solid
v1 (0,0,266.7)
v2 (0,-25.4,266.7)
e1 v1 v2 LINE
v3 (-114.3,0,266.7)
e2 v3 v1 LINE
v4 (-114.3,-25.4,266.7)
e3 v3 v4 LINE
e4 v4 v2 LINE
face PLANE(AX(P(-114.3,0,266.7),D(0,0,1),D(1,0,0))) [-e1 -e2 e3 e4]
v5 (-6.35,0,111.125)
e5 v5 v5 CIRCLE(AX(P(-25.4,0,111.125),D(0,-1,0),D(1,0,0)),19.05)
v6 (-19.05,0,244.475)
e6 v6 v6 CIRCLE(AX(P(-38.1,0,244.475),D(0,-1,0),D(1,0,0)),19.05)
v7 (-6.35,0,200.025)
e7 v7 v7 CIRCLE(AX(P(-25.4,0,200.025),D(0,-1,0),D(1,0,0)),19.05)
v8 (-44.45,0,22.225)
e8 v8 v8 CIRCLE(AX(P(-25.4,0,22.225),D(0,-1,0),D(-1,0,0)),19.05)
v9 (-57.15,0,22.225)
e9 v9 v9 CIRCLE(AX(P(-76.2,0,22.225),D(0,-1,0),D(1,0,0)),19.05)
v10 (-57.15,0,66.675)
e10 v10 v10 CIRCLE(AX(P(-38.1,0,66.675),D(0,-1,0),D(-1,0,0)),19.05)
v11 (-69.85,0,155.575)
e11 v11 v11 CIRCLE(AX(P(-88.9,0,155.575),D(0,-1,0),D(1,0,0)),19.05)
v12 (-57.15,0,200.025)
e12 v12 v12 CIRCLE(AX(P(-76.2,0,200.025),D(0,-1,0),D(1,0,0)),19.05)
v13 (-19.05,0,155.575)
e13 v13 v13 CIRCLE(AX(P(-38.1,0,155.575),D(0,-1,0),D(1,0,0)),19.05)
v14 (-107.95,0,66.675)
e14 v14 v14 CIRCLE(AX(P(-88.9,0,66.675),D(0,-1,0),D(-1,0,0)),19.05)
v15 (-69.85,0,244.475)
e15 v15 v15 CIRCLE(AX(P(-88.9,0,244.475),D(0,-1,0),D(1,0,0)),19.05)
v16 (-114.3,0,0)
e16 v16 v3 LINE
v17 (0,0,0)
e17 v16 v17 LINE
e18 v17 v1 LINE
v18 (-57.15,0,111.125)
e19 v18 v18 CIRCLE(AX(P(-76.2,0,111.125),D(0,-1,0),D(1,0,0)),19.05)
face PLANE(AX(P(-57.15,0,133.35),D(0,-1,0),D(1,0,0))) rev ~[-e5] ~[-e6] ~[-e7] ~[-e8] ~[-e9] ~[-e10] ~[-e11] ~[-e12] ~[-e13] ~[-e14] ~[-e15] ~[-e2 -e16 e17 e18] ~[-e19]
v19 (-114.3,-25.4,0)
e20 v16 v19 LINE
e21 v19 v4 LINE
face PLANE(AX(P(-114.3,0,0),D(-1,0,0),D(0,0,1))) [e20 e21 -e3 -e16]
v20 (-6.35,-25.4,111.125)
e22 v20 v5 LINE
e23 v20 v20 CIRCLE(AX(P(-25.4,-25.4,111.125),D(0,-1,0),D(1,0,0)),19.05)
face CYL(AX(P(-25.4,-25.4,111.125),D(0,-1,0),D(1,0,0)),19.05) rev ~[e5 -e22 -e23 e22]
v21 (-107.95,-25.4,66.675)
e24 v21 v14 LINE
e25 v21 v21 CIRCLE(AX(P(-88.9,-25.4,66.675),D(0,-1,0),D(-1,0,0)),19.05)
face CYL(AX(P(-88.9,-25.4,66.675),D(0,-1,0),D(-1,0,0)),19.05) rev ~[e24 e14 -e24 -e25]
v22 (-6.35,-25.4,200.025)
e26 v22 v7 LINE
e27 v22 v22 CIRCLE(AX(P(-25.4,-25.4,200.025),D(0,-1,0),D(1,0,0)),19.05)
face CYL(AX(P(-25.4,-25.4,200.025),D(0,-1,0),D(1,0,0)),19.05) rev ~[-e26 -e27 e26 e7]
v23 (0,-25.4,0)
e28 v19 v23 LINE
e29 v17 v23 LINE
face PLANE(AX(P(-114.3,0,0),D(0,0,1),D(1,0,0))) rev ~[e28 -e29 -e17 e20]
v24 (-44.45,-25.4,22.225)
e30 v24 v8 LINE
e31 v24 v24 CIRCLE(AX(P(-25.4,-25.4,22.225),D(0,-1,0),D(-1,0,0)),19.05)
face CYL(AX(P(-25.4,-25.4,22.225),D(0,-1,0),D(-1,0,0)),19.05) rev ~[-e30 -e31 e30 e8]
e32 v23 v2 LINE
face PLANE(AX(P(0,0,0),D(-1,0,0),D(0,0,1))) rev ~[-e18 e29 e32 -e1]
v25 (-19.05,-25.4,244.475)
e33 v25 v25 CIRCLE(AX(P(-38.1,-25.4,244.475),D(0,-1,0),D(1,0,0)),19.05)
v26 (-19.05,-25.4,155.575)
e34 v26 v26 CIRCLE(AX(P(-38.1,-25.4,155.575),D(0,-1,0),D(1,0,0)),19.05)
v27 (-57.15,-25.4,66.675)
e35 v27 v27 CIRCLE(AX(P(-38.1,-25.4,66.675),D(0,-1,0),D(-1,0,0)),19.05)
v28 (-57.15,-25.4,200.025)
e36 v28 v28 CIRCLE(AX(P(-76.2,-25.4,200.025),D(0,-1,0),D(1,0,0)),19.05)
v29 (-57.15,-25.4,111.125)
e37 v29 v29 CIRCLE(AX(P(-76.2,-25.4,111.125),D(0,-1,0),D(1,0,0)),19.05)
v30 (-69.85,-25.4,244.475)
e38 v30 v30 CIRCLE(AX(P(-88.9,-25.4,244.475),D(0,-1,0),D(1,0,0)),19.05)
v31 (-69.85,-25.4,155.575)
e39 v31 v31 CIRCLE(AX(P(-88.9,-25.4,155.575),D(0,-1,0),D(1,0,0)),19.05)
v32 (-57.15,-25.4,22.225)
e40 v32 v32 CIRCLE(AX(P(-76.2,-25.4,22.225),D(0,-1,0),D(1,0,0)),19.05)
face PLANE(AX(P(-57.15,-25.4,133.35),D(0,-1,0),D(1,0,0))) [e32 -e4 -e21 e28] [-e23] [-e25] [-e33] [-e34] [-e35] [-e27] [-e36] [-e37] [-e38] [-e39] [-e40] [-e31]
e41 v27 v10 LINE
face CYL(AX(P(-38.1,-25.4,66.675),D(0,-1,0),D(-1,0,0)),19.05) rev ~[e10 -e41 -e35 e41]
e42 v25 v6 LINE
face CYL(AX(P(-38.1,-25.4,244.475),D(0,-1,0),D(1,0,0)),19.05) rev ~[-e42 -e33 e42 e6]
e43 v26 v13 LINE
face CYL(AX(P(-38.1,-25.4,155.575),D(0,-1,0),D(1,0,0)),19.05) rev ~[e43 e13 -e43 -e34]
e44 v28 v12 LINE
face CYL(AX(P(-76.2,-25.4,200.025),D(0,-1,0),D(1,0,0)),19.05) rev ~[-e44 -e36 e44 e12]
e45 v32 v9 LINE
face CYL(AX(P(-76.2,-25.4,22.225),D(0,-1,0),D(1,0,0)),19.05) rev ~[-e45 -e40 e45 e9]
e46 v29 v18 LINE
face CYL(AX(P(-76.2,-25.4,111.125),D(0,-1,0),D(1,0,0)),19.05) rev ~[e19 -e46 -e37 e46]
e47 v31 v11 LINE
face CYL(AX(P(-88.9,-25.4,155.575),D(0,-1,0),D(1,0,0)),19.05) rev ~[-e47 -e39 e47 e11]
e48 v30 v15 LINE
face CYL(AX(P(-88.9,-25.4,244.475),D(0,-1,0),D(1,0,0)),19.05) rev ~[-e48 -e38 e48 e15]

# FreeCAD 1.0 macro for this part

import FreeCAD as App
import Part
import Sketcher
from FreeCAD import Vector
Q = App.Units.Quantity

doc = App.newDocument("Part")
body = doc.addObject("PartDesign::Body", "Body")

sketch1 = doc.addObject("Sketcher::SketchObject", "Sketch")
body.addObject(sketch1)
sketch1.AttachmentSupport = (doc.XZ_Plane, [""])
sketch1.MapMode = "FlatFace"
sketch1.addGeometry([
    Part.LineSegment(Vector(-114.3, 266.7, 0), Vector(-114.3, 0, 0)),
    Part.LineSegment(Vector(-114.3, 0, 0), Vector(0, 0, 0)),
    Part.LineSegment(Vector(0, 0, 0), Vector(0, 266.7, 0)),
    Part.LineSegment(Vector(0, 266.7, 0), Vector(-114.3, 266.7, 0)),
], False)
sketch1.addConstraint([
    Sketcher.Constraint("Coincident", 0, 2, 1, 1),
    Sketcher.Constraint("Coincident", 1, 2, 2, 1),
    Sketcher.Constraint("Coincident", 2, 2, 3, 1),
    Sketcher.Constraint("Coincident", 3, 2, 0, 1),
    Sketcher.Constraint("Vertical", 0),
    Sketcher.Constraint("Horizontal", 1),
    Sketcher.Constraint("Vertical", 2),
    Sketcher.Constraint("Horizontal", 3),
    Sketcher.Constraint("Coincident", 1, 2, -1, 1),
    Sketcher.Constraint("DistanceX", 1, 1, 1, 2, Q("4.5 in")),
    Sketcher.Constraint("DistanceY", 0, 2, 0, 1, Q("10.5 in")),
])
pad1 = doc.addObject("PartDesign::Pad", "Pad")
body.addObject(pad1)
pad1.Profile = sketch1
pad1.Length = Q("1 in")

sketch2 = doc.addObject("Sketcher::SketchObject", "Sketch001")
body.addObject(sketch2)
sketch2.AttachmentSupport = (doc.XZ_Plane, [""])
sketch2.MapMode = "FlatFace"
sketch2.AttachmentOffset = App.Placement(Vector(0, 0, 1 * 25.4), App.Rotation())
sketch2.addGeometry([
    Part.Circle(Vector(-25.4, 22.225, 0), Vector(0, 0, 1), 19.05),
    Part.Circle(Vector(-76.2, 22.225, 0), Vector(0, 0, 1), 19.05),
    Part.Circle(Vector(-88.9, 66.675, 0), Vector(0, 0, 1), 19.05),
    Part.Circle(Vector(-38.1, 66.675, 0), Vector(0, 0, 1), 19.05),
    Part.Circle(Vector(-25.4, 111.125, 0), Vector(0, 0, 1), 19.05),
    Part.Circle(Vector(-76.2, 111.125, 0), Vector(0, 0, 1), 19.05),
    Part.Circle(Vector(-25.4, 200.025, 0), Vector(0, 0, 1), 19.05),
    Part.Circle(Vector(-76.2, 200.025, 0), Vector(0, 0, 1), 19.05),
    Part.Circle(Vector(-38.1, 155.575, 0), Vector(0, 0, 1), 19.05),
    Part.Circle(Vector(-88.9, 155.575, 0), Vector(0, 0, 1), 19.05),
    Part.Circle(Vector(-38.1, 244.475, 0), Vector(0, 0, 1), 19.05),
    Part.Circle(Vector(-88.9, 244.475, 0), Vector(0, 0, 1), 19.05),
], False)
sketch2.addConstraint([
    Sketcher.Constraint("Equal", 0, 1),
    Sketcher.Constraint("Equal", 1, 2),
    Sketcher.Constraint("Equal", 2, 3),
    Sketcher.Constraint("Equal", 3, 4),
    Sketcher.Constraint("Equal", 4, 5),
    Sketcher.Constraint("Equal", 5, 6),
    Sketcher.Constraint("Equal", 6, 7),
    Sketcher.Constraint("Equal", 7, 8),
    Sketcher.Constraint("Equal", 8, 9),
    Sketcher.Constraint("Equal", 9, 10),
    Sketcher.Constraint("Equal", 10, 11),
    Sketcher.Constraint("Horizontal", 0, 3, 1, 3),
    Sketcher.Constraint("Horizontal", 2, 3, 3, 3),
    Sketcher.Constraint("Horizontal", 4, 3, 5, 3),
    Sketcher.Constraint("Horizontal", 6, 3, 7, 3),
    Sketcher.Constraint("Horizontal", 8, 3, 9, 3),
    Sketcher.Constraint("Horizontal", 10, 3, 11, 3),
    Sketcher.Constraint("Vertical", 0, 3, 4, 3),
    Sketcher.Constraint("Vertical", 1, 3, 5, 3),
    Sketcher.Constraint("Vertical", 4, 3, 6, 3),
    Sketcher.Constraint("Vertical", 5, 3, 7, 3),
    Sketcher.Constraint("Vertical", 3, 3, 8, 3),
    Sketcher.Constraint("Vertical", 2, 3, 9, 3),
    Sketcher.Constraint("Vertical", 8, 3, 10, 3),
    Sketcher.Constraint("Vertical", 9, 3, 11, 3),
    Sketcher.Constraint("Diameter", 0, Q("1.5 in")),
    Sketcher.Constraint("DistanceX", 0, 3, -1, 1, Q("1 in")),
    Sketcher.Constraint("DistanceX", 1, 3, -1, 1, Q("3 in")),
    Sketcher.Constraint("DistanceX", 2, 3, 3, 3, Q("2 in")),
    Sketcher.Constraint("DistanceY", 0, 3, 6, 3, Q("7 in")),
    Sketcher.Constraint("DistanceX", 2, 3, -1, 1, Q("3.5 in")),
    Sketcher.Constraint("DistanceY", 0, 3, 4, 3, Q("3.5 in")),
    Sketcher.Constraint("DistanceY", 3, 3, 8, 3, Q("3.5 in")),
    Sketcher.Constraint("DistanceY", 8, 3, 10, 3, Q("3.5 in")),
    Sketcher.Constraint("DistanceY", 1, 3, 2, 3, Q("1.75 in")),
    Sketcher.Constraint("DistanceY", -1, 1, 0, 3, Q("0.875 in")),
])
pocket1 = doc.addObject("PartDesign::Pocket", "Pocket")
body.addObject(pocket1)
pocket1.Profile = sketch2
pocket1.Length = Q("1 in")

doc.recompute()
